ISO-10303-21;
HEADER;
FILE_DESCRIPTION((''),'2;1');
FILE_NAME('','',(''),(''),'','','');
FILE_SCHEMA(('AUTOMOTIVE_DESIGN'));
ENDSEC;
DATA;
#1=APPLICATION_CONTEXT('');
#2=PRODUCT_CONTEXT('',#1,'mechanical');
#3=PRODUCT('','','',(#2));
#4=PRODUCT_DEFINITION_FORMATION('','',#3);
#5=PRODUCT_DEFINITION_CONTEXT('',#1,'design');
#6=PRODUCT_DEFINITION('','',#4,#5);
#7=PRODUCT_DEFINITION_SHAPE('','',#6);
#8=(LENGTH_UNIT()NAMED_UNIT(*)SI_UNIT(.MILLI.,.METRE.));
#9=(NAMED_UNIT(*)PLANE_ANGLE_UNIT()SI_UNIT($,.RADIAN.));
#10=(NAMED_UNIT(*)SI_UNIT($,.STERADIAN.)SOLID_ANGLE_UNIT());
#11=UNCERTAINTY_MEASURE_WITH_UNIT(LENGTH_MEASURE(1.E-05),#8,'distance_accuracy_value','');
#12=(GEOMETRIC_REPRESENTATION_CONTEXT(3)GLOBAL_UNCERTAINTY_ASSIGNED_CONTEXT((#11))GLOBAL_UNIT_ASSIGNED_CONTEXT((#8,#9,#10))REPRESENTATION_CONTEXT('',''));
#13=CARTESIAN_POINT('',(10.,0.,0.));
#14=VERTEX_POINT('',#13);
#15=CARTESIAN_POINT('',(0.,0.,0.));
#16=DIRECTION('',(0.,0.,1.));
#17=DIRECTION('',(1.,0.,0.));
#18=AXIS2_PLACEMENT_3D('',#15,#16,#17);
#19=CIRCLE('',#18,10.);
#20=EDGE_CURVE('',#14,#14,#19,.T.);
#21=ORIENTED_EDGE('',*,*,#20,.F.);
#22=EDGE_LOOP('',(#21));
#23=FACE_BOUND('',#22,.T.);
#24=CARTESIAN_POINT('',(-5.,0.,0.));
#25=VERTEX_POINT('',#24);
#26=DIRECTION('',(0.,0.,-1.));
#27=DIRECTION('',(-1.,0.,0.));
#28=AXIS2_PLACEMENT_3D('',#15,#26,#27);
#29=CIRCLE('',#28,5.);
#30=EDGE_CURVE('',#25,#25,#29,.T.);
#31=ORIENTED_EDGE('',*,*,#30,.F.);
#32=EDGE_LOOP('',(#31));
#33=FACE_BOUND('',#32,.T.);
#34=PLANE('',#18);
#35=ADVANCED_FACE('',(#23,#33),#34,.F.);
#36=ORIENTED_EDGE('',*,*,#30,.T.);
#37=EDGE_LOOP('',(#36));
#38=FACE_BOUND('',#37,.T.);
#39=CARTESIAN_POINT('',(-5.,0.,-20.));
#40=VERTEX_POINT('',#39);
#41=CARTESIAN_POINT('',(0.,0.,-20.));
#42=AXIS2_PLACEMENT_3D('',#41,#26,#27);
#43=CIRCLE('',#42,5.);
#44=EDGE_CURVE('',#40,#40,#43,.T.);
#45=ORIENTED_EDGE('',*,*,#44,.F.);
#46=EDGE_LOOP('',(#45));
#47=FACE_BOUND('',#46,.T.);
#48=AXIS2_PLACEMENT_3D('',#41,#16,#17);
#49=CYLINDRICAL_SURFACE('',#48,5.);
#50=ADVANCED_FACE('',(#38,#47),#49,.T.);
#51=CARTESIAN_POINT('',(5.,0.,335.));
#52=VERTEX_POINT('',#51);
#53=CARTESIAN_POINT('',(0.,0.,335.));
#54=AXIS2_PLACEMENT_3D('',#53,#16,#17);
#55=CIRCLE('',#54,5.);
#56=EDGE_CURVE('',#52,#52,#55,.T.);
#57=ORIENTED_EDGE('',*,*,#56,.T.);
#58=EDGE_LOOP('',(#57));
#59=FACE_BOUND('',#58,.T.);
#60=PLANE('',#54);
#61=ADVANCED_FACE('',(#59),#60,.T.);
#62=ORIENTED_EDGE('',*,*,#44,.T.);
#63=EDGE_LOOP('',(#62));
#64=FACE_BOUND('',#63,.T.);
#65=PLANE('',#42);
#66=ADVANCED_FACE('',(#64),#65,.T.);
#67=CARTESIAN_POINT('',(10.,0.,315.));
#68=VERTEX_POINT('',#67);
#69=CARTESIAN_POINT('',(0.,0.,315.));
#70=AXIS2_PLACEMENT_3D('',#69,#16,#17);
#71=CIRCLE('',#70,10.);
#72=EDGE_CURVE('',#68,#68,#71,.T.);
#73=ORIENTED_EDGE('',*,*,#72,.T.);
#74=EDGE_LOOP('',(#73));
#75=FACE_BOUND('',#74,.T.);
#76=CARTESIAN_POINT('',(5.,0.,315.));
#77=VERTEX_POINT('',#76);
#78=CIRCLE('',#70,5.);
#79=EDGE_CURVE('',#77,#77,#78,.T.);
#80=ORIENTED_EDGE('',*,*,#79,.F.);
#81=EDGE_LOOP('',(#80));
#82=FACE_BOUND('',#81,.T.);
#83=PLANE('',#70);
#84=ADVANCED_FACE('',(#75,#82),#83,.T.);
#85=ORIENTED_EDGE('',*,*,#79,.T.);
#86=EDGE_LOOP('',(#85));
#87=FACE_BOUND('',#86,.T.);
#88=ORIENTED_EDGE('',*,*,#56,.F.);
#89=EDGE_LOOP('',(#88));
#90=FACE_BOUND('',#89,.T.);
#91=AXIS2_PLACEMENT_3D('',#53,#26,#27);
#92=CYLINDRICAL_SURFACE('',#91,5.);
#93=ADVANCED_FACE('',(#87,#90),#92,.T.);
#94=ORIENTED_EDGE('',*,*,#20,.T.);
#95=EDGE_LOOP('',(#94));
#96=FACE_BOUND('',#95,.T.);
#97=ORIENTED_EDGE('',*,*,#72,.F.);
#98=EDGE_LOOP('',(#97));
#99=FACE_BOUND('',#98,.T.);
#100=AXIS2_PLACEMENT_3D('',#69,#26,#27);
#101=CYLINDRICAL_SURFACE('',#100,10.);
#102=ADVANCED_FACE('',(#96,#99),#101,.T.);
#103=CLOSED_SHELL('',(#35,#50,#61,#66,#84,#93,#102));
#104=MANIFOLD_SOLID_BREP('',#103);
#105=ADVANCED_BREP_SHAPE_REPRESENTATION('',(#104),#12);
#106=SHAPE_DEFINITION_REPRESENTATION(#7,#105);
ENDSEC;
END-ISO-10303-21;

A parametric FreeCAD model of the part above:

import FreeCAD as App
import Part
import Sketcher
from FreeCAD import Vector

doc = App.newDocument("Part")
body = doc.addObject("PartDesign::Body", "Body")

# Sketch on XY plane
sketch1 = body.newObject("Sketcher::SketchObject", "Sketch")
sketch1.AttachmentSupport = (doc.getObject("XY_Plane"), [""])
sketch1.MapMode = "FlatFace"
sketch1.addGeometry(Part.Circle(Vector(0, 0, 0), Vector(0, 0, 1), 10), False)
sketch1.addConstraint([
    Sketcher.Constraint("Coincident", 0, 3, -1, 1),
    Sketcher.Constraint("Diameter", 0, 20.0),
])
pad1 = body.newObject("PartDesign::Pad", "Pad")
pad1.Profile = sketch1
pad1.Length = 315

# Sketch on XY plane
sketch2 = body.newObject("Sketcher::SketchObject", "Sketch001")
sketch2.AttachmentSupport = (doc.getObject("XY_Plane"), [""])
sketch2.MapMode = "FlatFace"
sketch2.AttachmentOffset = App.Placement(Vector(0, 0, 315), App.Rotation())
sketch2.addGeometry(Part.Circle(Vector(0, 0, 0), Vector(0, 0, 1), 5), False)
sketch2.addConstraint([
    Sketcher.Constraint("Coincident", 0, 3, -1, 1),
    Sketcher.Constraint("Diameter", 0, 10.0),
])
pad2 = body.newObject("PartDesign::Pad", "Pad001")
pad2.Profile = sketch2
pad2.Length = 20

# Sketch on XY plane
sketch3 = body.newObject("Sketcher::SketchObject", "Sketch002")
sketch3.AttachmentSupport = (doc.getObject("XY_Plane"), [""])
sketch3.MapMode = "FlatFace"
sketch3.addGeometry(Part.Circle(Vector(0, 0, 0), Vector(0, 0, 1), 5), False)
sketch3.addConstraint([
    Sketcher.Constraint("Coincident", 0, 3, -1, 1),
    Sketcher.Constraint("Diameter", 0, 10.0),
])
pad3 = body.newObject("PartDesign::Pad", "Pad002")
pad3.Profile = sketch3
pad3.Length = 20
pad3.Reversed = True

doc.recompute()
